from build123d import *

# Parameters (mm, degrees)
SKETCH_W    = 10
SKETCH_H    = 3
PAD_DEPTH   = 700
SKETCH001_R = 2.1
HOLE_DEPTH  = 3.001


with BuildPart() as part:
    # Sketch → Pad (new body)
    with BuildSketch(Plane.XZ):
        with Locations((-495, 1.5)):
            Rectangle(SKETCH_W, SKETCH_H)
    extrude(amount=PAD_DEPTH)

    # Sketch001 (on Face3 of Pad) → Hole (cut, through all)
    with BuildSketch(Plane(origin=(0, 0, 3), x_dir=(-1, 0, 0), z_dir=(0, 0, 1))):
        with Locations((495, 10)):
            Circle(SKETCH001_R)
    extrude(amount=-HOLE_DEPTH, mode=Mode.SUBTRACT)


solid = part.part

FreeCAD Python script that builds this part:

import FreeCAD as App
import Part
import Sketcher
from FreeCAD import Vector


def add_polygon(sketch, points):
    """Adds a closed chain of lines whose ends are joined by coincident constraints."""
    first, n = sketch.GeometryCount, len(points)
    for a, b in zip(points, points[1:] + points[:1]):
        sketch.addGeometry(Part.LineSegment(App.Vector(*a, 0), App.Vector(*b, 0)), False)
    for i in range(n):
        sketch.addConstraint(Sketcher.Constraint("Coincident", first + i, 2, first + (i + 1) % n, 1))

doc = App.newDocument("Part")
body = doc.addObject("PartDesign::Body", "Body")

# Sketch on XZ plane
sketch1 = doc.addObject("Sketcher::SketchObject", "Sketch")
body.addObject(sketch1)
sketch1.AttachmentSupport = (doc.XZ_Plane, [""])
sketch1.MapMode = "FlatFace"
add_polygon(sketch1, [(-500, 3), (-500, 0), (-490, 0), (-490, 3)])  # lines 0-3
sketch1.addConstraint([
    Sketcher.Constraint("Vertical", 0),
    Sketcher.Constraint("Horizontal", 1),
    Sketcher.Constraint("Vertical", 2),
    Sketcher.Constraint("Horizontal", 3),
    Sketcher.Constraint("PointOnObject", 0, 2, -1),
    Sketcher.Constraint("DistanceX", 1, 1, 1, 2, 10.0),
    Sketcher.Constraint("DistanceY", 0, 2, 0, 1, 3.0),
    Sketcher.Constraint("DistanceX", 0, 2, -1, 1, 500.0),
])
pad1 = doc.addObject("PartDesign::Pad", "Pad")
body.addObject(pad1)
pad1.Profile = sketch1
pad1.Length = 700

# Sketch on XY plane
sketch2 = doc.addObject("Sketcher::SketchObject", "Sketch001")
body.addObject(sketch2)
sketch2.AttachmentSupport = (doc.XY_Plane, [""])
sketch2.MapMode = "FlatFace"
sketch2.AttachmentOffset = App.Placement(Vector(0, 0, 3), App.Rotation())
sketch2.addGeometry(Part.Circle(Vector(-495, -10, 0), Vector(0, 0, 1), 2.1), False)
sketch2.addConstraint([
    Sketcher.Constraint("Diameter", 0, 4.2),
    Sketcher.Constraint("DistanceX", 0, 3, -1, 1, 495.0),
    Sketcher.Constraint("DistanceY", 0, 3, -1, 1, 10.0),
])
pocket1 = doc.addObject("PartDesign::Pocket", "Pocket")
body.addObject(pocket1)
pocket1.Profile = sketch2
pocket1.Type = "ThroughAll"

doc.recompute()
